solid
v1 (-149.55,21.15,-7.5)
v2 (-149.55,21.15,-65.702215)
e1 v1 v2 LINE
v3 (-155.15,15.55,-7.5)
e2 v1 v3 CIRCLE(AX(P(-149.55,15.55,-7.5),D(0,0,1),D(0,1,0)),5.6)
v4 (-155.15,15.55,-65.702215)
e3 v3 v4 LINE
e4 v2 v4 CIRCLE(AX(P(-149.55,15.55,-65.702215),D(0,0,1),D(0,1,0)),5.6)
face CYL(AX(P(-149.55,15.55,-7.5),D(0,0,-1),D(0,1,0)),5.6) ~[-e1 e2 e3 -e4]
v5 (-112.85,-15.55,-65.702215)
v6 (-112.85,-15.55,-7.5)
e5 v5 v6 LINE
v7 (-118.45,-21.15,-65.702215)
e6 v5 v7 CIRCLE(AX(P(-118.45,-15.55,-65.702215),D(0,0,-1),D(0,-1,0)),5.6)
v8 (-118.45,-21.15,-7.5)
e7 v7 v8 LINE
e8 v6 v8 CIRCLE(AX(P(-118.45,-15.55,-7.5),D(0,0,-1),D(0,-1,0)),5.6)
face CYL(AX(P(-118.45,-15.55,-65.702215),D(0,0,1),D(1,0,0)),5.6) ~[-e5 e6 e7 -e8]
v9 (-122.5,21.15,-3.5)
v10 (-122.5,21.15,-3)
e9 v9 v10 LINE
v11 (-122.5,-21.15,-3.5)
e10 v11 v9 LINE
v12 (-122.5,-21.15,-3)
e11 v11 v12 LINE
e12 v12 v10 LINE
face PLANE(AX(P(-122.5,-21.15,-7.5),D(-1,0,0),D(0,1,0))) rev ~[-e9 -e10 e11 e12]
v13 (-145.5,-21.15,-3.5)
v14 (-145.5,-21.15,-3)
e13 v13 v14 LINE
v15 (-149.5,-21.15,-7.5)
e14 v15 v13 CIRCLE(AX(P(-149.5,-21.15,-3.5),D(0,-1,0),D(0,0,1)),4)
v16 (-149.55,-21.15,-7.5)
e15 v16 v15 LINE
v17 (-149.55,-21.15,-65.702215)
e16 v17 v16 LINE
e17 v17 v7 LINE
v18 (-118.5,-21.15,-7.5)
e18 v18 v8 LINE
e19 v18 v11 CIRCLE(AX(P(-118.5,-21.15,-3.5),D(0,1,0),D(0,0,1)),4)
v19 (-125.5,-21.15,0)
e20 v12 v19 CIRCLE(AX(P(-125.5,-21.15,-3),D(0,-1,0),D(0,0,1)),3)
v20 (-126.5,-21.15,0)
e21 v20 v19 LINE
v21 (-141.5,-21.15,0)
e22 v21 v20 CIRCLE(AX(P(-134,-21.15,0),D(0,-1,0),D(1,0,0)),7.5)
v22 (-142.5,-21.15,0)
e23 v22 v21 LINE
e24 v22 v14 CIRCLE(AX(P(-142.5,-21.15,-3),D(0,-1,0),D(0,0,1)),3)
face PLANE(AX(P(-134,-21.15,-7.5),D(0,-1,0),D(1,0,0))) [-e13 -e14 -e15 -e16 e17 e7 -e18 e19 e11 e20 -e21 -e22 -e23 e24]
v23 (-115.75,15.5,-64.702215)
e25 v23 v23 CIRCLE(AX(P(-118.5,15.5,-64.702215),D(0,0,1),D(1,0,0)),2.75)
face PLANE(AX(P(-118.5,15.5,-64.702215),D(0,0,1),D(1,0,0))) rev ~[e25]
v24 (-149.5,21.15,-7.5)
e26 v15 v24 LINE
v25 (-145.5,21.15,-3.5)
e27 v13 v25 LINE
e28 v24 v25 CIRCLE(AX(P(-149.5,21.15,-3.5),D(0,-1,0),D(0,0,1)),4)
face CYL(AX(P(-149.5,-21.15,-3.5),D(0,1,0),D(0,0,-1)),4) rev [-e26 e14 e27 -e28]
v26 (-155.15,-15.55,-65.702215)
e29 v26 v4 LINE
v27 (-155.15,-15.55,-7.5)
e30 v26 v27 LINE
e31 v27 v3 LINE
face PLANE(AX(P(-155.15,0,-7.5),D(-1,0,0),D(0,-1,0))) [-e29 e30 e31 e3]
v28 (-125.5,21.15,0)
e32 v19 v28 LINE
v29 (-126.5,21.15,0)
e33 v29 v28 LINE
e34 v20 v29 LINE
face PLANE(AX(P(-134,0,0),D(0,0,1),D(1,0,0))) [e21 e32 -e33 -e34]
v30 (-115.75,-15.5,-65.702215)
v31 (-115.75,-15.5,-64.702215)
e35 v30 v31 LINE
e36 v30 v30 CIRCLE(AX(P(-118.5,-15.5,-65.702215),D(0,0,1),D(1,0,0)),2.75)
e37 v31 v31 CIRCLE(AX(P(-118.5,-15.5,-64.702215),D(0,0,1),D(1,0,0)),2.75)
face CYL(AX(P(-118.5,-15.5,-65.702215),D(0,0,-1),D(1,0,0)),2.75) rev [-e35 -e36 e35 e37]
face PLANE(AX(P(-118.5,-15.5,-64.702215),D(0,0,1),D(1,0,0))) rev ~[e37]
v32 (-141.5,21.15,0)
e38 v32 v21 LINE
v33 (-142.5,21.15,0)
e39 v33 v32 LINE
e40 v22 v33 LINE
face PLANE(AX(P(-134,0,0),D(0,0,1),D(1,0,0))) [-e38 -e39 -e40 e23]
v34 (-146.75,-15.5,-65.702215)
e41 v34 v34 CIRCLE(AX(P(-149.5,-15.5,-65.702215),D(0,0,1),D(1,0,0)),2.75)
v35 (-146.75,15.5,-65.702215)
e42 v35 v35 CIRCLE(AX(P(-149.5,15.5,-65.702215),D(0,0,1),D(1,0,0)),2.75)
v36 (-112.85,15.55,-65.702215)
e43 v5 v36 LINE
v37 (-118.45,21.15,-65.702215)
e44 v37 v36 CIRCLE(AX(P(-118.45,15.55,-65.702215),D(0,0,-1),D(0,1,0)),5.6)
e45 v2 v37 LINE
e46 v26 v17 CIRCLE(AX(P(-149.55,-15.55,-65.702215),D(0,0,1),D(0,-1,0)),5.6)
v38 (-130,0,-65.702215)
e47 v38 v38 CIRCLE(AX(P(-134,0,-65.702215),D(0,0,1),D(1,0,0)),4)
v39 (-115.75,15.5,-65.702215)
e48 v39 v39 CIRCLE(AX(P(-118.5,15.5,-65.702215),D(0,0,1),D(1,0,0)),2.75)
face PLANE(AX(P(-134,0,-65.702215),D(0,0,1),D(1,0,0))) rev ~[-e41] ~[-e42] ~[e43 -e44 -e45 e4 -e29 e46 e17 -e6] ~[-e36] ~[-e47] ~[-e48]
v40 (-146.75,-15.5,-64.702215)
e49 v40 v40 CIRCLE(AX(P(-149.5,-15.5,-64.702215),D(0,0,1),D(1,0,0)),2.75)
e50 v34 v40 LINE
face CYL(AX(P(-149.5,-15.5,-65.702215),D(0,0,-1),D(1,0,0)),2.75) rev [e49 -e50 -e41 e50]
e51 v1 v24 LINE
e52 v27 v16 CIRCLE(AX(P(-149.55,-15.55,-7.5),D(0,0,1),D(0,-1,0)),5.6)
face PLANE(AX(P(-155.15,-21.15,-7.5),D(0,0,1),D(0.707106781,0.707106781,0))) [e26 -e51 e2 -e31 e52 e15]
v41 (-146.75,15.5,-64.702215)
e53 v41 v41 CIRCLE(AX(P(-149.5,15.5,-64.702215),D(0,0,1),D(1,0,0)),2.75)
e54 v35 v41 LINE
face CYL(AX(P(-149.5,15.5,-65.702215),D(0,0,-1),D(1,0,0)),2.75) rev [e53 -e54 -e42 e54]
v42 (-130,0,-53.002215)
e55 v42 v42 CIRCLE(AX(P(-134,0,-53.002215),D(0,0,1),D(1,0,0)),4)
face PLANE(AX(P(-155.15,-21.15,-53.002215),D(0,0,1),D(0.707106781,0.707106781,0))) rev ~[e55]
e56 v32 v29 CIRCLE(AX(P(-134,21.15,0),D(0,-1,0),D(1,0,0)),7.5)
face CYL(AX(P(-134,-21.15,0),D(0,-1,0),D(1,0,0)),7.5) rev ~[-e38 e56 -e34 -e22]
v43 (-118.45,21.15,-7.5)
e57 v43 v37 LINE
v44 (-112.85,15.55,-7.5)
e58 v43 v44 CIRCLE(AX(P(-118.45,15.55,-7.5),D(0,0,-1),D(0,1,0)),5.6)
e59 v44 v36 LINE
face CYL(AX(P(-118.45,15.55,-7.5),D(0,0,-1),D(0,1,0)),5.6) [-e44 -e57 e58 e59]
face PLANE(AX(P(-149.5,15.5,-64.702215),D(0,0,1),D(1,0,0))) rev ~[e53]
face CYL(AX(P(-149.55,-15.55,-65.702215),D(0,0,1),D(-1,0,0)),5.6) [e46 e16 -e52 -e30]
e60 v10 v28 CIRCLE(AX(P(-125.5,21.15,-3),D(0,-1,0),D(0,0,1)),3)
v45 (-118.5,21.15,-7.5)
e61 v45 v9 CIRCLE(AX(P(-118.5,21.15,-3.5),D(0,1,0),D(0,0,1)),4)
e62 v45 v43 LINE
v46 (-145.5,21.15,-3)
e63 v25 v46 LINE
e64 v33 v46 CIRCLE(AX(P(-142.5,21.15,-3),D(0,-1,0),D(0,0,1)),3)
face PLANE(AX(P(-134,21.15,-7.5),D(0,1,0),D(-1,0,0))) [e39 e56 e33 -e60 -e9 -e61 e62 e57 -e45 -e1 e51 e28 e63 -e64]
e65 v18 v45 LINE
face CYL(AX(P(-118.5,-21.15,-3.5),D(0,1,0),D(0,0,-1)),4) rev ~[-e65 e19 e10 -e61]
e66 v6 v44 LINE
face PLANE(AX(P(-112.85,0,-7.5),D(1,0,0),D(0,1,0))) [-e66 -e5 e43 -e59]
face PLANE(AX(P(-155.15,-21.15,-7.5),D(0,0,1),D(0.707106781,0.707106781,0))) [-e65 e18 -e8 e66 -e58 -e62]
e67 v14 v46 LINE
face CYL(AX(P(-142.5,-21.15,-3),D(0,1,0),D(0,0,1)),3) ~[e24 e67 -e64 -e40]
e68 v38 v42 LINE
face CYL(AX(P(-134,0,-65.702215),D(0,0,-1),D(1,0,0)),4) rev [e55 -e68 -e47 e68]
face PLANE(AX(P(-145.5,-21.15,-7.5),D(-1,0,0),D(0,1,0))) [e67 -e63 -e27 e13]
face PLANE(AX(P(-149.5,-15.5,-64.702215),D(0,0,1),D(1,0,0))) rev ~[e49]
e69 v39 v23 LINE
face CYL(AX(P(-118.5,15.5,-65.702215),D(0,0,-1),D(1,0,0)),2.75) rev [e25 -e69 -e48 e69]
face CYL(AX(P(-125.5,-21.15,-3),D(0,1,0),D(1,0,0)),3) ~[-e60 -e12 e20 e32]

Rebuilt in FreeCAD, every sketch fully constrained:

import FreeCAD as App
import Part
import Sketcher


def edges_at(feature, points):
    """Names of the edges that pass closest to the given points."""
    edges = feature.Shape.Edges
    near = lambda p: min(range(len(edges)), key=lambda i: edges[i].distToShape(Part.Vertex(*p))[0])
    return sorted({f"Edge{near(p) + 1}" for p in points})

doc = App.newDocument("Part")
body = doc.addObject("PartDesign::Body", "Body")

sketch1 = doc.addObject("Sketcher::SketchObject", "Sketch")
body.addObject(sketch1)
sketch1.AttachmentSupport = (doc.XY_Plane, [""])
sketch1.MapMode = "FlatFace"
sketch1.AttachmentOffset = App.Placement(App.Vector(0, 0, -65.702215), App.Rotation())
sketch1.addGeometry(Part.LineSegment(App.Vector(-155.2, 21.1, 0), App.Vector(-155.2, -21.1, 0)), False)
sketch1.addGeometry(Part.LineSegment(App.Vector(-155.2, -21.1, 0), App.Vector(-112.8, -21.1, 0)), False)
sketch1.addGeometry(Part.LineSegment(App.Vector(-112.8, -21.1, 0), App.Vector(-112.8, 21.1, 0)), False)
sketch1.addGeometry(Part.LineSegment(App.Vector(-112.8, 21.1, 0), App.Vector(-155.2, 21.1, 0)), False)
sketch1.addGeometry(Part.Circle(App.Vector(-134, 0, 0), App.Vector(0, 0, 1), 4), False)
sketch1.addConstraint(Sketcher.Constraint("Coincident", 0, 2, 1, 1))
sketch1.addConstraint(Sketcher.Constraint("Coincident", 1, 2, 2, 1))
sketch1.addConstraint(Sketcher.Constraint("Coincident", 2, 2, 3, 1))
sketch1.addConstraint(Sketcher.Constraint("Coincident", 3, 2, 0, 1))
sketch1.addConstraint(Sketcher.Constraint("Vertical", 0))
sketch1.addConstraint(Sketcher.Constraint("Horizontal", 1))
sketch1.addConstraint(Sketcher.Constraint("Vertical", 2))
sketch1.addConstraint(Sketcher.Constraint("Horizontal", 3))
sketch1.addConstraint(Sketcher.Constraint("PointOnObject", 4, 3, -1))
sketch1.addConstraint(Sketcher.Constraint("Equal", 3, 0))
sketch1.addConstraint(Sketcher.Constraint("Diameter", 4, 8.0))
sketch1.addConstraint(Sketcher.Constraint("DistanceX", 1, 1, 1, 2, 42.3))
sketch1.addConstraint(Sketcher.Constraint("DistanceX", 4, 3, -1, 1, 134.0))
sketch1.addConstraint(Sketcher.Constraint("DistanceX", 0, 2, -1, 1, 155.15))
sketch1.addConstraint(Sketcher.Constraint("DistanceY", 0, 2, -1, 1, 21.15))
pad1 = doc.addObject("PartDesign::Pad", "Pad")
body.addObject(pad1)
pad1.Profile = sketch1
pad1.Length = 12.7

sketch2 = doc.addObject("Sketcher::SketchObject", "Sketch001")
body.addObject(sketch2)
sketch2.AttachmentSupport = (doc.XY_Plane, [""])
sketch2.MapMode = "FlatFace"
sketch2.AttachmentOffset = App.Placement(App.Vector(0, 0, -53.002215), App.Rotation())
sketch2.addGeometry(Part.LineSegment(App.Vector(-155, 21, 0), App.Vector(-155, -21, 0)), False)
sketch2.addGeometry(Part.LineSegment(App.Vector(-155, -21, 0), App.Vector(-113, -21, 0)), False)
sketch2.addGeometry(Part.LineSegment(App.Vector(-113, -21, 0), App.Vector(-113, 21, 0)), False)
sketch2.addGeometry(Part.LineSegment(App.Vector(-113, 21, 0), App.Vector(-155, 21, 0)), False)
sketch2.addConstraint(Sketcher.Constraint("Coincident", 0, 2, 1, 1))
sketch2.addConstraint(Sketcher.Constraint("Coincident", 1, 2, 2, 1))
sketch2.addConstraint(Sketcher.Constraint("Coincident", 2, 2, 3, 1))
sketch2.addConstraint(Sketcher.Constraint("Coincident", 3, 2, 0, 1))
sketch2.addConstraint(Sketcher.Constraint("Vertical", 0))
sketch2.addConstraint(Sketcher.Constraint("Horizontal", 1))
sketch2.addConstraint(Sketcher.Constraint("Vertical", 2))
sketch2.addConstraint(Sketcher.Constraint("Horizontal", 3))
sketch2.addConstraint(Sketcher.Constraint("Equal", 3, 0))
sketch2.addConstraint(Sketcher.Constraint("DistanceX", 1, 1, 1, 2, 42.3))
sketch2.addConstraint(Sketcher.Constraint("DistanceX", 0, 2, -1, 1, 155.15))
sketch2.addConstraint(Sketcher.Constraint("DistanceY", 0, 2, -1, 1, 21.15))

sketch3 = doc.addObject("Sketcher::SketchObject", "Sketch002")
body.addObject(sketch3)
sketch3.AttachmentSupport = (doc.XY_Plane, [""])
sketch3.MapMode = "FlatFace"
sketch3.AttachmentOffset = App.Placement(App.Vector(0, 0, -7.5), App.Rotation())
sketch3.addGeometry(Part.LineSegment(App.Vector(-155, 21, 0), App.Vector(-155, -21, 0)), False)
sketch3.addGeometry(Part.LineSegment(App.Vector(-155, -21, 0), App.Vector(-113, -21, 0)), False)
sketch3.addGeometry(Part.LineSegment(App.Vector(-113, -21, 0), App.Vector(-113, 21, 0)), False)
sketch3.addGeometry(Part.LineSegment(App.Vector(-113, 21, 0), App.Vector(-155, 21, 0)), False)
sketch3.addConstraint(Sketcher.Constraint("Coincident", 0, 2, 1, 1))
sketch3.addConstraint(Sketcher.Constraint("Coincident", 1, 2, 2, 1))
sketch3.addConstraint(Sketcher.Constraint("Coincident", 2, 2, 3, 1))
sketch3.addConstraint(Sketcher.Constraint("Coincident", 3, 2, 0, 1))
sketch3.addConstraint(Sketcher.Constraint("Vertical", 0))
sketch3.addConstraint(Sketcher.Constraint("Horizontal", 1))
sketch3.addConstraint(Sketcher.Constraint("Vertical", 2))
sketch3.addConstraint(Sketcher.Constraint("Horizontal", 3))
sketch3.addConstraint(Sketcher.Constraint("Equal", 3, 0))
sketch3.addConstraint(Sketcher.Constraint("DistanceX", 1, 1, 1, 2, 42.3))
sketch3.addConstraint(Sketcher.Constraint("DistanceX", 0, 2, -1, 1, 155.15))
sketch3.addConstraint(Sketcher.Constraint("DistanceY", 0, 2, -1, 1, 21.15))

additiveloft = doc.addObject("PartDesign::AdditiveLoft", "AdditiveLoft")
body.addObject(additiveloft)
additiveloft.Profile = sketch2
additiveloft.Sections = [sketch3]

sketch4 = doc.addObject("Sketcher::SketchObject", "Sketch003")
body.addObject(sketch4)
sketch4.AttachmentSupport = (doc.XY_Plane, [""])
sketch4.MapMode = "FlatFace"
sketch4.AttachmentOffset = App.Placement(App.Vector(0, 0, -7.5), App.Rotation())
sketch4.addGeometry(Part.LineSegment(App.Vector(-146, 21, 0), App.Vector(-146, -21, 0)), False)
sketch4.addGeometry(Part.LineSegment(App.Vector(-146, -21, 0), App.Vector(-122, -21, 0)), False)
sketch4.addGeometry(Part.LineSegment(App.Vector(-122, -21, 0), App.Vector(-122, 21, 0)), False)
sketch4.addGeometry(Part.LineSegment(App.Vector(-122, 21, 0), App.Vector(-146, 21, 0)), False)
sketch4.addConstraint(Sketcher.Constraint("Coincident", 0, 2, 1, 1))
sketch4.addConstraint(Sketcher.Constraint("Coincident", 1, 2, 2, 1))
sketch4.addConstraint(Sketcher.Constraint("Coincident", 2, 2, 3, 1))
sketch4.addConstraint(Sketcher.Constraint("Coincident", 3, 2, 0, 1))
sketch4.addConstraint(Sketcher.Constraint("Vertical", 0))
sketch4.addConstraint(Sketcher.Constraint("Horizontal", 1))
sketch4.addConstraint(Sketcher.Constraint("Vertical", 2))
sketch4.addConstraint(Sketcher.Constraint("Horizontal", 3))
sketch4.addConstraint(Sketcher.Constraint("DistanceX", 1, 1, 1, 2, 23.0))
sketch4.addConstraint(Sketcher.Constraint("DistanceY", 0, 2, 0, 1, 42.3))
sketch4.addConstraint(Sketcher.Constraint("DistanceX", 0, 2, -1, 1, 145.5))
sketch4.addConstraint(Sketcher.Constraint("DistanceY", 0, 2, -1, 1, 21.15))
pad2 = doc.addObject("PartDesign::Pad", "Pad001")
body.addObject(pad2)
pad2.Profile = sketch4
pad2.Length = 7.5

sketch5 = doc.addObject("Sketcher::SketchObject", "Sketch004")
body.addObject(sketch5)
sketch5.AttachmentSupport = (doc.XZ_Plane, [""])
sketch5.MapMode = "FlatFace"
sketch5.AttachmentOffset = App.Placement(App.Vector(0, 0, 21.15), App.Rotation())
sketch5.addGeometry(Part.Circle(App.Vector(-134, 0, 0), App.Vector(0, 0, 1), 8), False)
sketch5.addConstraint(Sketcher.Constraint("PointOnObject", 0, 3, -1))
sketch5.addConstraint(Sketcher.Constraint("Diameter", 0, 15.0))
sketch5.addConstraint(Sketcher.Constraint("DistanceX", 0, 3, -1, 1, 134.0))
pocket1 = doc.addObject("PartDesign::Pocket", "Pocket")
body.addObject(pocket1)
pocket1.Profile = sketch5
pocket1.Length = 50

sketch6 = doc.addObject("Sketcher::SketchObject", "Sketch005")
body.addObject(sketch6)
sketch6.AttachmentSupport = (doc.XY_Plane, [""])
sketch6.MapMode = "FlatFace"
sketch6.AttachmentOffset = App.Placement(App.Vector(0, 0, -65.702215), App.Rotation())
sketch6.addGeometry(Part.Circle(App.Vector(-149.5, -15.5, 0), App.Vector(0, 0, 1), 2.8), False)
sketch6.addGeometry(Part.Circle(App.Vector(-118.5, -15.5, 0), App.Vector(0, 0, 1), 2.8), False)
sketch6.addGeometry(Part.Circle(App.Vector(-118.5, 15.5, 0), App.Vector(0, 0, 1), 2.8), False)
sketch6.addGeometry(Part.Circle(App.Vector(-149.5, 15.5, 0), App.Vector(0, 0, 1), 2.8), False)
sketch6.addConstraint(Sketcher.Constraint("Equal", 0, 1))
sketch6.addConstraint(Sketcher.Constraint("Equal", 1, 2))
sketch6.addConstraint(Sketcher.Constraint("Equal", 2, 3))
sketch6.addConstraint(Sketcher.Constraint("Symmetric", 1, 3, 2, 3, -1))
sketch6.addConstraint(Sketcher.Constraint("Symmetric", 0, 3, 3, 3, -1))
sketch6.addConstraint(Sketcher.Constraint("Horizontal", 0, 3, 1, 3))
sketch6.addConstraint(Sketcher.Constraint("Diameter", 0, 5.5))
sketch6.addConstraint(Sketcher.Constraint("DistanceX", 0, 3, 1, 3, 31.0))
sketch6.addConstraint(Sketcher.Constraint("DistanceY", 1, 3, 2, 3, 31.0))
sketch6.addConstraint(Sketcher.Constraint("DistanceX", 0, 3, -1, 1, 149.5))
pocket2 = doc.addObject("PartDesign::Pocket", "Pocket001")
body.addObject(pocket2)
pocket2.Profile = sketch6
pocket2.Length = 1
pocket2.Reversed = True
doc.recompute()

fillet = doc.addObject("PartDesign::Fillet", "Fillet")
body.addObject(fillet)
fillet.Base = (pocket2, edges_at(pocket2, [(-122.5, 0, -7.5), (-145.5, 0, -7.5)]))
fillet.Radius = 4
doc.recompute()

fillet2 = doc.addObject("PartDesign::Fillet", "Fillet001")
body.addObject(fillet2)
fillet2.Base = (fillet, edges_at(fillet, [(-122.5, 0, 0), (-145.5, 0, 0)]))
fillet2.Radius = 3
doc.recompute()

fillet3 = doc.addObject("PartDesign::Fillet", "Fillet002")
body.addObject(fillet3)
fillet3.Base = (fillet2, edges_at(fillet2, [
    (-155.15, -21.15, -36.601),
    (-155.15, -21.15, -36.601),
    (-155.15, 21.15, -36.601),
    (-155.15, 21.15, -36.601),
    (-112.85, -21.15, -36.601),
    (-112.85, -21.15, -36.601),
    (-112.85, 21.15, -36.601),
    (-112.85, 21.15, -36.601),
]))
fillet3.Radius = 5.6

doc.recompute()
